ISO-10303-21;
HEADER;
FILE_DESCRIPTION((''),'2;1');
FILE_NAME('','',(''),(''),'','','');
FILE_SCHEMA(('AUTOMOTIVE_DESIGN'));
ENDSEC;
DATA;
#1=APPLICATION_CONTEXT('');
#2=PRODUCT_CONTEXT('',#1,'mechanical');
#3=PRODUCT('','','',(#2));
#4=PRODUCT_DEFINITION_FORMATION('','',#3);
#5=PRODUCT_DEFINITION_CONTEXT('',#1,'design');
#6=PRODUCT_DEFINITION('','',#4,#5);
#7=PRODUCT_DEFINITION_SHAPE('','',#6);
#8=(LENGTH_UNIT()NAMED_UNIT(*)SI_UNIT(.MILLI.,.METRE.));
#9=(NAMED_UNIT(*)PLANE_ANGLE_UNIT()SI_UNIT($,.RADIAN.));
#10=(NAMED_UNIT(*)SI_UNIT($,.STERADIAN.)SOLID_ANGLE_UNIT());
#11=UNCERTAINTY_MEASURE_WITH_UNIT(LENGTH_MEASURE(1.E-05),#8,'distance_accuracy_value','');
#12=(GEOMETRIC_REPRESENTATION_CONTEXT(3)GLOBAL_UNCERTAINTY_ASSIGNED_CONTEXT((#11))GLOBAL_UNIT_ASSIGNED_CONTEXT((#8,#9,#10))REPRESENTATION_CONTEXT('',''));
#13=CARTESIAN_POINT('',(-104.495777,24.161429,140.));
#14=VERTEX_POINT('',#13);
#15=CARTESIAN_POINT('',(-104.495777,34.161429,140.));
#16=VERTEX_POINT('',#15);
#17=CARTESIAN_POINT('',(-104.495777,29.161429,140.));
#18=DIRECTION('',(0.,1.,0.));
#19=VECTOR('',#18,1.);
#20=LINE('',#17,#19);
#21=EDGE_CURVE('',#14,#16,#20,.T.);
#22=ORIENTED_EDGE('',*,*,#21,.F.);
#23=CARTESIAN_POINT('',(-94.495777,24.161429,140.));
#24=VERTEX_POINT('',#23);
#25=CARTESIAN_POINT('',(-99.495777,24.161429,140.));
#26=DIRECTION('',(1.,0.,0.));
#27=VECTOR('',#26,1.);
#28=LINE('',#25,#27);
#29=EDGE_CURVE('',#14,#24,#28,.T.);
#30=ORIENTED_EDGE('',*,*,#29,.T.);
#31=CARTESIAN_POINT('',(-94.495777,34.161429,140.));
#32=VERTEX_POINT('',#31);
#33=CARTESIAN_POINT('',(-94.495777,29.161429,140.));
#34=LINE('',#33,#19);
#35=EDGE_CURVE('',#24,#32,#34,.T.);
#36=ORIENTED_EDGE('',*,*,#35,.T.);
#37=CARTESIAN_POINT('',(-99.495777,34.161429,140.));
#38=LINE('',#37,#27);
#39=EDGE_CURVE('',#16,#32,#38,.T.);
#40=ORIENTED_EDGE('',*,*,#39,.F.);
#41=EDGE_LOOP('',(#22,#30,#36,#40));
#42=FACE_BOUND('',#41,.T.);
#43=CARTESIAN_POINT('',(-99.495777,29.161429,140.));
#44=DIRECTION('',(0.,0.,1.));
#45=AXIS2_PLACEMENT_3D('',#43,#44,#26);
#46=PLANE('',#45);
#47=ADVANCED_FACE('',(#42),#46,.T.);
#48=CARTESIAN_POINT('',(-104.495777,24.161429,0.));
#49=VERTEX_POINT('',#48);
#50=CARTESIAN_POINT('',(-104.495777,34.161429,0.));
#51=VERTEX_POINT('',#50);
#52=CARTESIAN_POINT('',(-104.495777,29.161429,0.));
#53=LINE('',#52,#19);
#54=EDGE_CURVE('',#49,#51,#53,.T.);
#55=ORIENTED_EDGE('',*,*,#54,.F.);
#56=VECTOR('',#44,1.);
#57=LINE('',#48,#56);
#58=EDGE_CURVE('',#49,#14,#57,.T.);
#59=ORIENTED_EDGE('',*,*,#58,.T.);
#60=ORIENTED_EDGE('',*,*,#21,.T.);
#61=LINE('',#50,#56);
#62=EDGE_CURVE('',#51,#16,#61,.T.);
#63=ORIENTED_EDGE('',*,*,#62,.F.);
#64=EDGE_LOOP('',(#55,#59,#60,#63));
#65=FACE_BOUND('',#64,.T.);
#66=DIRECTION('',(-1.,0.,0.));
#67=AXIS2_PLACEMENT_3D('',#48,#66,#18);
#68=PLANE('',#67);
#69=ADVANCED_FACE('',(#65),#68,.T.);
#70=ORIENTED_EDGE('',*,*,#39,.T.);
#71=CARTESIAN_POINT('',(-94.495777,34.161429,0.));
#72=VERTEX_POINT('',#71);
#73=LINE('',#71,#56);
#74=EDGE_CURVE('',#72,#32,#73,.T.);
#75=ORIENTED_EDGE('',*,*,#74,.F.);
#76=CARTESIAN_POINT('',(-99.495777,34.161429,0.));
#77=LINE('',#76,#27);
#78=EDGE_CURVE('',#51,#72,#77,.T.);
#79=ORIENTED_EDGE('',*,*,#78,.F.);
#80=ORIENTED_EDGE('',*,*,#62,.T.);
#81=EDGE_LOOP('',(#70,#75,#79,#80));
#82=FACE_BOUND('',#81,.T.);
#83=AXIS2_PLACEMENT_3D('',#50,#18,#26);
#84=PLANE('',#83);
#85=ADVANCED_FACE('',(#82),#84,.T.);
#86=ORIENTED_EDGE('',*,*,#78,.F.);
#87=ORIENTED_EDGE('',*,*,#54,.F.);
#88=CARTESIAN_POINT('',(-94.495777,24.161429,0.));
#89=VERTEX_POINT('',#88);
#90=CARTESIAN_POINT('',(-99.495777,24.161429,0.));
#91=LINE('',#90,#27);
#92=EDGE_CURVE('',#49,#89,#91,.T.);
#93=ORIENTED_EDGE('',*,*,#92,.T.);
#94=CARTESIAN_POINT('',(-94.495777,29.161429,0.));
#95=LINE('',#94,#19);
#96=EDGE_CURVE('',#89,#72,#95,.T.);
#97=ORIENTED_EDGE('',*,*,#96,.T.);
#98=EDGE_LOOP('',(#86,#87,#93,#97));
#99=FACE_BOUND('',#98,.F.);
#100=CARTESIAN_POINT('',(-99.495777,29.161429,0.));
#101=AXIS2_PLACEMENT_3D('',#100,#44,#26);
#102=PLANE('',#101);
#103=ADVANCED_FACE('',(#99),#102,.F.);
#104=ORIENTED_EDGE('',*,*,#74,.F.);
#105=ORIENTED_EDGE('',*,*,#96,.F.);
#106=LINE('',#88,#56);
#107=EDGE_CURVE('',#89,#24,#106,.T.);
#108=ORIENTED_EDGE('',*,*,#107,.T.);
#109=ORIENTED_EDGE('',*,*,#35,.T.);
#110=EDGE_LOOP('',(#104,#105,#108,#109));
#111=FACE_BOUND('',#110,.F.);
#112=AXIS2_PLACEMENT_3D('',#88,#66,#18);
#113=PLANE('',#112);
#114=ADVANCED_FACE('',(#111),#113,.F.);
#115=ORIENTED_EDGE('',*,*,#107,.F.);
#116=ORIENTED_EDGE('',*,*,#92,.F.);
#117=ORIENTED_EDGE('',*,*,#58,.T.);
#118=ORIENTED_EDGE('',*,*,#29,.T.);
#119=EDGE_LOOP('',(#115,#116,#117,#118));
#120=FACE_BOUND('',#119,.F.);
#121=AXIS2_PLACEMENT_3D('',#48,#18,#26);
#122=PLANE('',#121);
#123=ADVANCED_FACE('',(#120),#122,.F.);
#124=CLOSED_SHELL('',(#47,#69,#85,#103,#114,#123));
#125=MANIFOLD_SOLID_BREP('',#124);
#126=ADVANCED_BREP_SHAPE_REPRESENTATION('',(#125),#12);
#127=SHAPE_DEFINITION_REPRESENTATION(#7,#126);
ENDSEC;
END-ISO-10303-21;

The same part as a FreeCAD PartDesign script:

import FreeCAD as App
import Part
import Sketcher

V = App.Vector
Q = App.Units.Quantity

doc = App.newDocument("Part")
body = doc.addObject("PartDesign::Body", "Body")

# Sketch on XY plane
sketch1 = doc.addObject("Sketcher::SketchObject", "Sketch")
body.addObject(sketch1)
sketch1.AttachmentSupport = (doc.XY_Plane, [""])
sketch1.MapMode = "FlatFace"
sketch1.addGeometry(Part.LineSegment(V(-104.495777, 34.161429, 0), V(-104.495777, 24.161429, 0)), False)
sketch1.addGeometry(Part.LineSegment(V(-104.495777, 24.161429, 0), V(-94.495777, 24.161429, 0)), False)
sketch1.addGeometry(Part.LineSegment(V(-94.495777, 24.161429, 0), V(-94.495777, 34.161429, 0)), False)
sketch1.addGeometry(Part.LineSegment(V(-94.495777, 34.161429, 0), V(-104.495777, 34.161429, 0)), False)
sketch1.addConstraint(Sketcher.Constraint("Coincident", 0, 2, 1, 1))
sketch1.addConstraint(Sketcher.Constraint("Coincident", 1, 2, 2, 1))
sketch1.addConstraint(Sketcher.Constraint("Coincident", 2, 2, 3, 1))
sketch1.addConstraint(Sketcher.Constraint("Coincident", 3, 2, 0, 1))
sketch1.addConstraint(Sketcher.Constraint("Vertical", 0))
sketch1.addConstraint(Sketcher.Constraint("Horizontal", 1))
sketch1.addConstraint(Sketcher.Constraint("Vertical", 2))
sketch1.addConstraint(Sketcher.Constraint("Horizontal", 3))
sketch1.addConstraint(Sketcher.Constraint("Equal", 3, 0))
sketch1.addConstraint(Sketcher.Constraint("DistanceX", 1, 1, 1, 2, Q("10 mm")))
sketch1.addConstraint(Sketcher.Constraint("DistanceY", -1, 1, 0, 2, Q("24.161429 mm")))
sketch1.addConstraint(Sketcher.Constraint("DistanceX", 0, 2, -1, 1, Q("104.495777 mm")))
pad1 = doc.addObject("PartDesign::Pad", "Pad")
body.addObject(pad1)
pad1.Profile = sketch1
pad1.Length = 140

doc.recompute()
